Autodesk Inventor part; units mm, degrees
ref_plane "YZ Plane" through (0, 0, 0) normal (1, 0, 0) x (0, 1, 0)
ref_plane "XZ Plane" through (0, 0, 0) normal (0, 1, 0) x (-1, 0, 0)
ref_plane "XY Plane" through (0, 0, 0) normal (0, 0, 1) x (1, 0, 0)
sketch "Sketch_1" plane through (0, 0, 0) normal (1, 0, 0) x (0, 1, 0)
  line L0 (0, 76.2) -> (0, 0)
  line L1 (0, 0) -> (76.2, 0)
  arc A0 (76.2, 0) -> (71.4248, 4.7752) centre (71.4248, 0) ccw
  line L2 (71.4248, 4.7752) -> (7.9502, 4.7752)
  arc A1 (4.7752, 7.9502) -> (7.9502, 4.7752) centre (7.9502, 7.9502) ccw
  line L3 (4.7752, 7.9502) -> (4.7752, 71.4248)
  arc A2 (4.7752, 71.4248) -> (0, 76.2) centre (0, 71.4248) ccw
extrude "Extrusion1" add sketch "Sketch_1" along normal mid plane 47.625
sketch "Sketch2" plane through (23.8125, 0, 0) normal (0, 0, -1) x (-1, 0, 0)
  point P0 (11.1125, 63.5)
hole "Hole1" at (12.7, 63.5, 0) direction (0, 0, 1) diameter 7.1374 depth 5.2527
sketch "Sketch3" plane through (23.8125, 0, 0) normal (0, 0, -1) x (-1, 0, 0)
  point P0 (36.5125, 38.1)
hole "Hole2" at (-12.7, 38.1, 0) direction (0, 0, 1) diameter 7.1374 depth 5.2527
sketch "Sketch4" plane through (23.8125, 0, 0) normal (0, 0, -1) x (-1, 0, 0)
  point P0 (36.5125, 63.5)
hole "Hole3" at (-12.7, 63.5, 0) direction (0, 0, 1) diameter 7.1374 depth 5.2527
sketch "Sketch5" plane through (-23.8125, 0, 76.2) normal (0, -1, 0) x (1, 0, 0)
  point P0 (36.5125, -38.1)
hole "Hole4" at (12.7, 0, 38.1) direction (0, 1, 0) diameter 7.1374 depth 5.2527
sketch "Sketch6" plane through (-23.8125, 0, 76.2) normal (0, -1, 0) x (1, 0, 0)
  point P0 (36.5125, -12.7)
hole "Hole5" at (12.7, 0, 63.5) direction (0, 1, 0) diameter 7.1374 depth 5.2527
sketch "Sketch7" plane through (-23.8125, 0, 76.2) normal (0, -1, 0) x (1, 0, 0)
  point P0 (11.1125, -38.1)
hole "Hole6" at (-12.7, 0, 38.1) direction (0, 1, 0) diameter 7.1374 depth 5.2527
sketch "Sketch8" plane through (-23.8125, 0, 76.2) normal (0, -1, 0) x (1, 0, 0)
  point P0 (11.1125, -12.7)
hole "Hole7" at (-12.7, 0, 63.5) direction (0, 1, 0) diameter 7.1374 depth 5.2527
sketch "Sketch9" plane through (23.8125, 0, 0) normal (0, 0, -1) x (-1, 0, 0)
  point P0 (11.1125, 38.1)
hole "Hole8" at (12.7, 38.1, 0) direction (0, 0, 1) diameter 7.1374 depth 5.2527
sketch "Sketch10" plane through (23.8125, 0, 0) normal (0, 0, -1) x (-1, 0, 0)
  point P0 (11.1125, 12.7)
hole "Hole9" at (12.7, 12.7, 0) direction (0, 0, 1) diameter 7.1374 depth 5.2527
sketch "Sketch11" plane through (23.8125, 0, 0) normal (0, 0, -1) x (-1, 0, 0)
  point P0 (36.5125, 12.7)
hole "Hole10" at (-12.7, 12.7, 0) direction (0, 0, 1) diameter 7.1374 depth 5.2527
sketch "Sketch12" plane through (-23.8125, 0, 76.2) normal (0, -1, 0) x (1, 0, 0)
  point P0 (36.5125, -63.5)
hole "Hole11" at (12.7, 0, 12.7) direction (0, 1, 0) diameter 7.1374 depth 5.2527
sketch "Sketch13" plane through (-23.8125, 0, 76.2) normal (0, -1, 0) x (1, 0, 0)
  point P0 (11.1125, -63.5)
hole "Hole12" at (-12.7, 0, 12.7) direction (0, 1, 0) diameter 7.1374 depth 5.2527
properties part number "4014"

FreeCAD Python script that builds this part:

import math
import FreeCAD as App
import Part
import Sketcher
from FreeCAD import Vector
Q = App.Units.Quantity

doc = App.newDocument("Part")
params = doc.addObject("Spreadsheet::Sheet", "Params")
for row, (alias, value) in enumerate([
    ("sketch1_width", "3 in"),
    ("sketch1_radius", "0.188 in"),
    ("sketch1_radius2", "0.125 in"),
    ("pad1_length", "1.875 in"),
    ("sketch2_diameter", "0.281 in"),
    ("hole_diameter", "0.281 in"),
    ("hole_depth", "0.2067992 in"),
    ("sketch3_diameter", "0.281 in"),
    ("hole2_diameter", "0.281 in"),
    ("hole2_depth", "0.2067992 in"),
    ("sketch4_diameter", "0.281 in"),
    ("hole3_diameter", "0.281 in"),
    ("hole3_depth", "0.2067992 in"),
    ("sketch5_diameter", "0.281 in"),
    ("hole4_diameter", "0.281 in"),
    ("hole4_depth", "0.2067992 in"),
    ("sketch6_diameter", "0.281 in"),
    ("hole5_diameter", "0.281 in"),
    ("hole5_depth", "0.2067992 in"),
    ("sketch7_diameter", "0.281 in"),
    ("hole6_diameter", "0.281 in"),
    ("hole6_depth", "0.2067992 in"),
    ("sketch8_diameter", "0.281 in"),
    ("hole7_diameter", "0.281 in"),
    ("hole7_depth", "0.2067992 in"),
    ("sketch9_diameter", "0.281 in"),
    ("hole8_diameter", "0.281 in"),
    ("hole8_depth", "0.2067992 in"),
    ("sketch10_diameter", "0.281 in"),
    ("hole9_diameter", "0.281 in"),
    ("hole9_depth", "0.2067992 in"),
    ("sketch11_diameter", "0.281 in"),
    ("hole10_diameter", "0.281 in"),
    ("hole10_depth", "0.2067992 in"),
    ("sketch12_diameter", "0.281 in"),
    ("hole11_diameter", "0.281 in"),
    ("hole11_depth", "0.2067992 in"),
    ("sketch13_diameter", "0.281 in"),
    ("hole12_diameter", "0.281 in"),
    ("hole12_depth", "0.2067992 in"),
], start=1):
    params.set(f"A{row}", alias)
    params.set(f"B{row}", "=" + value)
    params.setAlias(f"B{row}", alias)

body = doc.addObject("PartDesign::Body", "Body")

sketch1 = doc.addObject("Sketcher::SketchObject", "Sketch")
body.addObject(sketch1)
sketch1.AttachmentSupport = (doc.YZ_Plane, [""])
sketch1.MapMode = "FlatFace"
sketch1.addGeometry([
    Part.ArcOfCircle(Part.Circle(Vector(0, 71.4, 0), Vector(0, 0, 1), 4.8), math.radians(0), math.radians(90)),
    Part.LineSegment(Vector(0, 76.2, 0), Vector(0, 0, 0)),
    Part.LineSegment(Vector(0, 0, 0), Vector(76.2, 0, 0)),
    Part.ArcOfCircle(Part.Circle(Vector(71.4, 0, 0), Vector(0, 0, 1), 4.8), math.radians(0), math.radians(90)),
    Part.LineSegment(Vector(71.4, 4.8, 0), Vector(8, 4.8, 0)),
    Part.ArcOfCircle(Part.Circle(Vector(8, 8, 0), Vector(0, 0, 1), 3.2), math.radians(180), math.radians(270)),
    Part.LineSegment(Vector(4.8, 8, 0), Vector(4.8, 71.4, 0)),
], False)
sketch1.addConstraint([
    Sketcher.Constraint("Coincident", 0, 2, 1, 1),
    Sketcher.Constraint("Coincident", 1, 2, 2, 1),
    Sketcher.Constraint("Coincident", 2, 2, 3, 1),
    Sketcher.Constraint("Tangent", 3, 2, 4, 1),
    Sketcher.Constraint("Tangent", 4, 2, 5, 2),
    Sketcher.Constraint("Tangent", 5, 1, 6, 1),
    Sketcher.Constraint("Tangent", 6, 2, 0, 1),
    Sketcher.Constraint("Vertical", 1),
    Sketcher.Constraint("Horizontal", 2),
    Sketcher.Constraint("Horizontal", 4),
    Sketcher.Constraint("Vertical", 6),
    Sketcher.Constraint("Coincident", 1, 2, -1, 1),
    Sketcher.Constraint("Equal", 0, 3),
    Sketcher.Constraint("PointOnObject", 0, 3, -2),
    Sketcher.Constraint("PointOnObject", 3, 3, -1),
    Sketcher.Constraint("Equal", 2, 1),
    Sketcher.Constraint("DistanceX", 2, 1, 2, 2, Q("3 in")),
    Sketcher.Constraint("Radius", 0, Q("0.188 in")),
    Sketcher.Constraint("Radius", 5, Q("0.125 in")),
])
sketch1.setExpression("Constraints[16]", "Params.sketch1_width")
sketch1.setExpression("Constraints[17]", "Params.sketch1_radius")
sketch1.setExpression("Constraints[18]", "Params.sketch1_radius2")
pad1 = doc.addObject("PartDesign::Pad", "Pad")
body.addObject(pad1)
pad1.Profile = sketch1
pad1.setExpression("Length", "Params.pad1_length")
pad1.Midplane = True

sketch2 = doc.addObject("Sketcher::SketchObject", "Sketch001")
body.addObject(sketch2)
sketch2.AttachmentSupport = (doc.XY_Plane, [""])
sketch2.MapMode = "FlatFace"
sketch2.addGeometry(Part.Circle(Vector(12.7, 63.5, 0), Vector(0, 0, 1), 3.6), False)
sketch2.addConstraint([
    Sketcher.Constraint("Diameter", 0, Q("0.281 in")),
    Sketcher.Constraint("DistanceX", -1, 1, 0, 3, Q("0.5 in")),
    Sketcher.Constraint("DistanceY", -1, 1, 0, 3, Q("2.5 in")),
])
sketch2.setExpression("Constraints[0]", "Params.sketch2_diameter")
doc.recompute()
hole = doc.addObject("PartDesign::Hole", "Hole")
body.addObject(hole)
hole.Profile = sketch2
hole.ThreadType = "None"
hole.setExpression("Diameter", "Params.hole_diameter")
hole.DepthType = "Dimension"
hole.setExpression("Depth", "Params.hole_depth")
hole.DrillPoint = "Flat"
hole.Reversed = True

sketch3 = doc.addObject("Sketcher::SketchObject", "Sketch002")
body.addObject(sketch3)
sketch3.AttachmentSupport = (doc.XY_Plane, [""])
sketch3.MapMode = "FlatFace"
sketch3.addGeometry(Part.Circle(Vector(-12.7, 38.1, 0), Vector(0, 0, 1), 3.6), False)
sketch3.addConstraint([
    Sketcher.Constraint("Diameter", 0, Q("0.281 in")),
    Sketcher.Constraint("DistanceX", 0, 3, -1, 1, Q("0.5 in")),
    Sketcher.Constraint("DistanceY", -1, 1, 0, 3, Q("1.5 in")),
])
sketch3.setExpression("Constraints[0]", "Params.sketch3_diameter")
doc.recompute()
hole2 = doc.addObject("PartDesign::Hole", "Hole001")
body.addObject(hole2)
hole2.Profile = sketch3
hole2.ThreadType = "None"
hole2.setExpression("Diameter", "Params.hole2_diameter")
hole2.DepthType = "Dimension"
hole2.setExpression("Depth", "Params.hole2_depth")
hole2.DrillPoint = "Flat"
hole2.Reversed = True

sketch4 = doc.addObject("Sketcher::SketchObject", "Sketch003")
body.addObject(sketch4)
sketch4.AttachmentSupport = (doc.XY_Plane, [""])
sketch4.MapMode = "FlatFace"
sketch4.addGeometry(Part.Circle(Vector(-12.7, 63.5, 0), Vector(0, 0, 1), 3.6), False)
sketch4.addConstraint([
    Sketcher.Constraint("Diameter", 0, Q("0.281 in")),
    Sketcher.Constraint("DistanceX", 0, 3, -1, 1, Q("0.5 in")),
    Sketcher.Constraint("DistanceY", -1, 1, 0, 3, Q("2.5 in")),
])
sketch4.setExpression("Constraints[0]", "Params.sketch4_diameter")
doc.recompute()
hole3 = doc.addObject("PartDesign::Hole", "Hole002")
body.addObject(hole3)
hole3.Profile = sketch4
hole3.ThreadType = "None"
hole3.setExpression("Diameter", "Params.hole3_diameter")
hole3.DepthType = "Dimension"
hole3.setExpression("Depth", "Params.hole3_depth")
hole3.DrillPoint = "Flat"
hole3.Reversed = True

sketch5 = doc.addObject("Sketcher::SketchObject", "Sketch004")
body.addObject(sketch5)
sketch5.AttachmentSupport = (doc.XZ_Plane, [""])
sketch5.MapMode = "FlatFace"
sketch5.addGeometry(Part.Circle(Vector(12.7, 38.1, 0), Vector(0, 0, 1), 3.6), False)
sketch5.addConstraint([
    Sketcher.Constraint("Diameter", 0, Q("0.281 in")),
    Sketcher.Constraint("DistanceX", -1, 1, 0, 3, Q("0.5 in")),
    Sketcher.Constraint("DistanceY", -1, 1, 0, 3, Q("1.5 in")),
])
sketch5.setExpression("Constraints[0]", "Params.sketch5_diameter")
doc.recompute()
hole4 = doc.addObject("PartDesign::Hole", "Hole003")
body.addObject(hole4)
hole4.Profile = sketch5
hole4.ThreadType = "None"
hole4.setExpression("Diameter", "Params.hole4_diameter")
hole4.DepthType = "Dimension"
hole4.setExpression("Depth", "Params.hole4_depth")
hole4.DrillPoint = "Flat"

sketch6 = doc.addObject("Sketcher::SketchObject", "Sketch005")
body.addObject(sketch6)
sketch6.AttachmentSupport = (doc.XZ_Plane, [""])
sketch6.MapMode = "FlatFace"
sketch6.addGeometry(Part.Circle(Vector(12.7, 63.5, 0), Vector(0, 0, 1), 3.6), False)
sketch6.addConstraint([
    Sketcher.Constraint("Diameter", 0, Q("0.281 in")),
    Sketcher.Constraint("DistanceX", -1, 1, 0, 3, Q("0.5 in")),
    Sketcher.Constraint("DistanceY", -1, 1, 0, 3, Q("2.5 in")),
])
sketch6.setExpression("Constraints[0]", "Params.sketch6_diameter")
doc.recompute()
hole5 = doc.addObject("PartDesign::Hole", "Hole004")
body.addObject(hole5)
hole5.Profile = sketch6
hole5.ThreadType = "None"
hole5.setExpression("Diameter", "Params.hole5_diameter")
hole5.DepthType = "Dimension"
hole5.setExpression("Depth", "Params.hole5_depth")
hole5.DrillPoint = "Flat"

sketch7 = doc.addObject("Sketcher::SketchObject", "Sketch006")
body.addObject(sketch7)
sketch7.AttachmentSupport = (doc.XZ_Plane, [""])
sketch7.MapMode = "FlatFace"
sketch7.addGeometry(Part.Circle(Vector(-12.7, 38.1, 0), Vector(0, 0, 1), 3.6), False)
sketch7.addConstraint([
    Sketcher.Constraint("Diameter", 0, Q("0.281 in")),
    Sketcher.Constraint("DistanceX", 0, 3, -1, 1, Q("0.5 in")),
    Sketcher.Constraint("DistanceY", -1, 1, 0, 3, Q("1.5 in")),
])
sketch7.setExpression("Constraints[0]", "Params.sketch7_diameter")
doc.recompute()
hole6 = doc.addObject("PartDesign::Hole", "Hole005")
body.addObject(hole6)
hole6.Profile = sketch7
hole6.ThreadType = "None"
hole6.setExpression("Diameter", "Params.hole6_diameter")
hole6.DepthType = "Dimension"
hole6.setExpression("Depth", "Params.hole6_depth")
hole6.DrillPoint = "Flat"

sketch8 = doc.addObject("Sketcher::SketchObject", "Sketch007")
body.addObject(sketch8)
sketch8.AttachmentSupport = (doc.XZ_Plane, [""])
sketch8.MapMode = "FlatFace"
sketch8.addGeometry(Part.Circle(Vector(-12.7, 63.5, 0), Vector(0, 0, 1), 3.6), False)
sketch8.addConstraint([
    Sketcher.Constraint("Diameter", 0, Q("0.281 in")),
    Sketcher.Constraint("DistanceX", 0, 3, -1, 1, Q("0.5 in")),
    Sketcher.Constraint("DistanceY", -1, 1, 0, 3, Q("2.5 in")),
])
sketch8.setExpression("Constraints[0]", "Params.sketch8_diameter")
doc.recompute()
hole7 = doc.addObject("PartDesign::Hole", "Hole006")
body.addObject(hole7)
hole7.Profile = sketch8
hole7.ThreadType = "None"
hole7.setExpression("Diameter", "Params.hole7_diameter")
hole7.DepthType = "Dimension"
hole7.setExpression("Depth", "Params.hole7_depth")
hole7.DrillPoint = "Flat"

sketch9 = doc.addObject("Sketcher::SketchObject", "Sketch008")
body.addObject(sketch9)
sketch9.AttachmentSupport = (doc.XY_Plane, [""])
sketch9.MapMode = "FlatFace"
sketch9.addGeometry(Part.Circle(Vector(12.7, 38.1, 0), Vector(0, 0, 1), 3.6), False)
sketch9.addConstraint([
    Sketcher.Constraint("Diameter", 0, Q("0.281 in")),
    Sketcher.Constraint("DistanceX", -1, 1, 0, 3, Q("0.5 in")),
    Sketcher.Constraint("DistanceY", -1, 1, 0, 3, Q("1.5 in")),
])
sketch9.setExpression("Constraints[0]", "Params.sketch9_diameter")
doc.recompute()
hole8 = doc.addObject("PartDesign::Hole", "Hole007")
body.addObject(hole8)
hole8.Profile = sketch9
hole8.ThreadType = "None"
hole8.setExpression("Diameter", "Params.hole8_diameter")
hole8.DepthType = "Dimension"
hole8.setExpression("Depth", "Params.hole8_depth")
hole8.DrillPoint = "Flat"
hole8.Reversed = True

sketch10 = doc.addObject("Sketcher::SketchObject", "Sketch009")
body.addObject(sketch10)
sketch10.AttachmentSupport = (doc.XY_Plane, [""])
sketch10.MapMode = "FlatFace"
sketch10.addGeometry(Part.Circle(Vector(12.7, 12.7, 0), Vector(0, 0, 1), 3.6), False)
sketch10.addConstraint([
    Sketcher.Constraint("Diameter", 0, Q("0.281 in")),
    Sketcher.Constraint("DistanceX", -1, 1, 0, 3, Q("0.5 in")),
    Sketcher.Constraint("DistanceY", -1, 1, 0, 3, Q("0.5 in")),
])
sketch10.setExpression("Constraints[0]", "Params.sketch10_diameter")
doc.recompute()
hole9 = doc.addObject("PartDesign::Hole", "Hole008")
body.addObject(hole9)
hole9.Profile = sketch10
hole9.ThreadType = "None"
hole9.setExpression("Diameter", "Params.hole9_diameter")
hole9.DepthType = "Dimension"
hole9.setExpression("Depth", "Params.hole9_depth")
hole9.DrillPoint = "Flat"
hole9.Reversed = True

sketch11 = doc.addObject("Sketcher::SketchObject", "Sketch010")
body.addObject(sketch11)
sketch11.AttachmentSupport = (doc.XY_Plane, [""])
sketch11.MapMode = "FlatFace"
sketch11.addGeometry(Part.Circle(Vector(-12.7, 12.7, 0), Vector(0, 0, 1), 3.6), False)
sketch11.addConstraint([
    Sketcher.Constraint("Diameter", 0, Q("0.281 in")),
    Sketcher.Constraint("DistanceX", 0, 3, -1, 1, Q("0.5 in")),
    Sketcher.Constraint("DistanceY", -1, 1, 0, 3, Q("0.5 in")),
])
sketch11.setExpression("Constraints[0]", "Params.sketch11_diameter")
doc.recompute()
hole10 = doc.addObject("PartDesign::Hole", "Hole009")
body.addObject(hole10)
hole10.Profile = sketch11
hole10.ThreadType = "None"
hole10.setExpression("Diameter", "Params.hole10_diameter")
hole10.DepthType = "Dimension"
hole10.setExpression("Depth", "Params.hole10_depth")
hole10.DrillPoint = "Flat"
hole10.Reversed = True

sketch12 = doc.addObject("Sketcher::SketchObject", "Sketch011")
body.addObject(sketch12)
sketch12.AttachmentSupport = (doc.XZ_Plane, [""])
sketch12.MapMode = "FlatFace"
sketch12.addGeometry(Part.Circle(Vector(12.7, 12.7, 0), Vector(0, 0, 1), 3.6), False)
sketch12.addConstraint([
    Sketcher.Constraint("Diameter", 0, Q("0.281 in")),
    Sketcher.Constraint("DistanceX", -1, 1, 0, 3, Q("0.5 in")),
    Sketcher.Constraint("DistanceY", -1, 1, 0, 3, Q("0.5 in")),
])
sketch12.setExpression("Constraints[0]", "Params.sketch12_diameter")
doc.recompute()
hole11 = doc.addObject("PartDesign::Hole", "Hole010")
body.addObject(hole11)
hole11.Profile = sketch12
hole11.ThreadType = "None"
hole11.setExpression("Diameter", "Params.hole11_diameter")
hole11.DepthType = "Dimension"
hole11.setExpression("Depth", "Params.hole11_depth")
hole11.DrillPoint = "Flat"

sketch13 = doc.addObject("Sketcher::SketchObject", "Sketch012")
body.addObject(sketch13)
sketch13.AttachmentSupport = (doc.XZ_Plane, [""])
sketch13.MapMode = "FlatFace"
sketch13.addGeometry(Part.Circle(Vector(-12.7, 12.7, 0), Vector(0, 0, 1), 3.6), False)
sketch13.addConstraint([
    Sketcher.Constraint("Diameter", 0, Q("0.281 in")),
    Sketcher.Constraint("DistanceX", 0, 3, -1, 1, Q("0.5 in")),
    Sketcher.Constraint("DistanceY", -1, 1, 0, 3, Q("0.5 in")),
])
sketch13.setExpression("Constraints[0]", "Params.sketch13_diameter")
doc.recompute()
hole12 = doc.addObject("PartDesign::Hole", "Hole011")
body.addObject(hole12)
hole12.Profile = sketch13
hole12.ThreadType = "None"
hole12.setExpression("Diameter", "Params.hole12_diameter")
hole12.DepthType = "Dimension"
hole12.setExpression("Depth", "Params.hole12_depth")
hole12.DrillPoint = "Flat"

doc.recompute()
